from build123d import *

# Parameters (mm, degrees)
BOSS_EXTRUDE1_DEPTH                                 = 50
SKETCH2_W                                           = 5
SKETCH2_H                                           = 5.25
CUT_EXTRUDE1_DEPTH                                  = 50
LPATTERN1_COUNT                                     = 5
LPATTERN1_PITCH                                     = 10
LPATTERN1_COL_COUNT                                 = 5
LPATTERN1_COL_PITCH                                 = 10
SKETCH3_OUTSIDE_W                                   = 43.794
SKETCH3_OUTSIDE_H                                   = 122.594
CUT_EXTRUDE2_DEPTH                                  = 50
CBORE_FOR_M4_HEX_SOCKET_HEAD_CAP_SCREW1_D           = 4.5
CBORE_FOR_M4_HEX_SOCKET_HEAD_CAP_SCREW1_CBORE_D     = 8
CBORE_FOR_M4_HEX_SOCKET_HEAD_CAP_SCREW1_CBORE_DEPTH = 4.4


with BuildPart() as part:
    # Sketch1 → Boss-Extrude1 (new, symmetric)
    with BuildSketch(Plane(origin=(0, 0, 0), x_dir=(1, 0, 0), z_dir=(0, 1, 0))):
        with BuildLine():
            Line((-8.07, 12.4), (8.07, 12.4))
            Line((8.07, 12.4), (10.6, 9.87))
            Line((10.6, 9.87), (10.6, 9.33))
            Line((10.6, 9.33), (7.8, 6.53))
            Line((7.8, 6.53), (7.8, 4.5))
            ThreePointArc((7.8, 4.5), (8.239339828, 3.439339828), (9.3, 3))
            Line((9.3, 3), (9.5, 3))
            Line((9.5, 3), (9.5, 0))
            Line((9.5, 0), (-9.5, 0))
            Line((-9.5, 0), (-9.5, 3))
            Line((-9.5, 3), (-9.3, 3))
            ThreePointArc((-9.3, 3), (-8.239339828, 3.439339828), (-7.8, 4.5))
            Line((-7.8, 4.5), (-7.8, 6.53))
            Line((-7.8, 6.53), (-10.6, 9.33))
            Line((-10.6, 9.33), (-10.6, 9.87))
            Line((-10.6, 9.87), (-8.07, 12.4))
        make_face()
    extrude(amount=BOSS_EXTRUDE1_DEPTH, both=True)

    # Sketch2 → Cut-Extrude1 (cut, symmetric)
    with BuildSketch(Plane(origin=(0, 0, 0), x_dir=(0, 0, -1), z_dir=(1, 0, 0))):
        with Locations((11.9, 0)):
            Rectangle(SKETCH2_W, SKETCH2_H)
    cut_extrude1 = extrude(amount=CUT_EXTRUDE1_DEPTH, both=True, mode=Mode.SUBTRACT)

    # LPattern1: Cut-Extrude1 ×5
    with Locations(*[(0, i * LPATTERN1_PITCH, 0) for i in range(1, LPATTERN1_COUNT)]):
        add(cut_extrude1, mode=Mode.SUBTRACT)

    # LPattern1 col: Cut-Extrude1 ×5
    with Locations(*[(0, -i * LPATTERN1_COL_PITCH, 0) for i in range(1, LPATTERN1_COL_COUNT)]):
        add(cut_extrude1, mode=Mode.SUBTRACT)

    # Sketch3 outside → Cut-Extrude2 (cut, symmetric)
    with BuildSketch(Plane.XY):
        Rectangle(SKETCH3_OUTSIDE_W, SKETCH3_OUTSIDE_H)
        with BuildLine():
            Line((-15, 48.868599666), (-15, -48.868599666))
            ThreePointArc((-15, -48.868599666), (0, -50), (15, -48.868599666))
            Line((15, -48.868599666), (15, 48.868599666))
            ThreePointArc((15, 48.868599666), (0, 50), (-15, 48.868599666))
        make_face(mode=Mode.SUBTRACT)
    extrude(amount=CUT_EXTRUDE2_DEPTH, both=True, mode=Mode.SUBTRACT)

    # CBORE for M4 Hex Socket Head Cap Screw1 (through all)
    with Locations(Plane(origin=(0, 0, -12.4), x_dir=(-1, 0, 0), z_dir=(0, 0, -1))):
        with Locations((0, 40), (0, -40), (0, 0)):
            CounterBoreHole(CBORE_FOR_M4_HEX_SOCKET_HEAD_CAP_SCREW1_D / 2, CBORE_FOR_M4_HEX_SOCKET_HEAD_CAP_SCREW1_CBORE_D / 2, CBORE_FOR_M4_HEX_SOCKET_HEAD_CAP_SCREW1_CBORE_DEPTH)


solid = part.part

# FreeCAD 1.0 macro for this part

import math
import FreeCAD as App
import Part
import Sketcher
from FreeCAD import Vector

doc = App.newDocument("Part")
params = doc.addObject("Spreadsheet::Sheet", "Params")
for row, (alias, value) in enumerate([
    ("sketch1_radius", "1.5 mm"),
    ("sketch1_width", "19 mm"),
    ("sketch1_height", "3 mm"),
    ("sketch1_width2", "0.2 mm"),
    ("sketch1_width3", "16.14 mm"),
    ("pad1_length", "100 mm"),
    ("sketch2_height", "5 mm"),
    ("sketch2_width", "5.25 mm"),
    ("pocket1_length", "100 mm"),
    ("linearpattern_pitch", "10 mm"),
    ("linearpattern2_pitch", "10 mm"),
    ("sketch3_radius", "100 mm"),
    ("pocket2_length", "100 mm"),
    ("sketch4_diameter", "4.5 mm"),
    ("hole_diameter", "4.5 mm"),
    ("hole_cbore_diameter", "8 mm"),
    ("hole_cbore_depth", "4.4 mm"),
], start=1):
    params.set(f"A{row}", alias)
    params.set(f"B{row}", "=" + value)
    params.setAlias(f"B{row}", alias)

body = doc.addObject("PartDesign::Body", "Body")

sketch1 = doc.addObject("Sketcher::SketchObject", "Sketch")
body.addObject(sketch1)
sketch1.AttachmentSupport = (doc.XZ_Plane, [""])
sketch1.MapMode = "FlatFace"
sketch1.addGeometry([
    Part.LineSegment(Vector(8.07, -12.4, 0), Vector(-8.07, -12.4, 0)),
    Part.LineSegment(Vector(-8.07, -12.4, 0), Vector(-10.6, -9.87, 0)),
    Part.LineSegment(Vector(-10.6, -9.87, 0), Vector(-10.6, -9.33, 0)),
    Part.LineSegment(Vector(-10.6, -9.33, 0), Vector(-7.8, -6.53, 0)),
    Part.LineSegment(Vector(-7.8, -6.53, 0), Vector(-7.8, -4.5, 0)),
    Part.ArcOfCircle(Part.Circle(Vector(-9.3, -4.5, 0), Vector(0, 0, 1), 1.5), math.radians(0), math.radians(90)),
    Part.LineSegment(Vector(-9.3, -3, 0), Vector(-9.5, -3, 0)),
    Part.LineSegment(Vector(-9.5, -3, 0), Vector(-9.5, 0, 0)),
    Part.LineSegment(Vector(-9.5, 0, 0), Vector(9.5, 0, 0)),
    Part.LineSegment(Vector(9.5, 0, 0), Vector(9.5, -3, 0)),
    Part.LineSegment(Vector(9.5, -3, 0), Vector(9.3, -3, 0)),
    Part.ArcOfCircle(Part.Circle(Vector(9.3, -4.5, 0), Vector(0, 0, 1), 1.5), math.radians(90), math.radians(180)),
    Part.LineSegment(Vector(7.8, -4.5, 0), Vector(7.8, -6.53, 0)),
    Part.LineSegment(Vector(7.8, -6.53, 0), Vector(10.6, -9.33, 0)),
    Part.LineSegment(Vector(10.6, -9.33, 0), Vector(10.6, -9.87, 0)),
    Part.LineSegment(Vector(10.6, -9.87, 0), Vector(8.07, -12.4, 0)),
], False)
sketch1.addConstraint([
    Sketcher.Constraint("Coincident", 0, 2, 1, 1),
    Sketcher.Constraint("Coincident", 1, 2, 2, 1),
    Sketcher.Constraint("Coincident", 2, 2, 3, 1),
    Sketcher.Constraint("Coincident", 3, 2, 4, 1),
    Sketcher.Constraint("Tangent", 4, 2, 5, 1),
    Sketcher.Constraint("Tangent", 5, 2, 6, 1),
    Sketcher.Constraint("Coincident", 6, 2, 7, 1),
    Sketcher.Constraint("Coincident", 7, 2, 8, 1),
    Sketcher.Constraint("Coincident", 8, 2, 9, 1),
    Sketcher.Constraint("Coincident", 9, 2, 10, 1),
    Sketcher.Constraint("Tangent", 10, 2, 11, 1),
    Sketcher.Constraint("Tangent", 11, 2, 12, 1),
    Sketcher.Constraint("Coincident", 12, 2, 13, 1),
    Sketcher.Constraint("Coincident", 13, 2, 14, 1),
    Sketcher.Constraint("Coincident", 14, 2, 15, 1),
    Sketcher.Constraint("Coincident", 15, 2, 0, 1),
    Sketcher.Constraint("Horizontal", 0),
    Sketcher.Constraint("Vertical", 2),
    Sketcher.Constraint("Vertical", 4),
    Sketcher.Constraint("Horizontal", 6),
    Sketcher.Constraint("Vertical", 7),
    Sketcher.Constraint("Horizontal", 8),
    Sketcher.Constraint("Vertical", 9),
    Sketcher.Constraint("Horizontal", 10),
    Sketcher.Constraint("Vertical", 12),
    Sketcher.Constraint("Vertical", 14),
    Sketcher.Constraint("Equal", 5, 11),
    Sketcher.Constraint("Symmetric", 7, 2, 8, 2, -1, 1),
    Sketcher.Constraint("Symmetric", 5, 3, 11, 3, -2),
    Sketcher.Constraint("Symmetric", 2, 2, 13, 2, -2),
    Sketcher.Constraint("Perpendicular", 1, 3),
    Sketcher.Constraint("Perpendicular", 3, 13),
    Sketcher.Constraint("Perpendicular", 13, 15),
    Sketcher.Constraint("Horizontal", 3, 2, 12, 2),
    Sketcher.Constraint("Horizontal", 1, 2, 14, 2),
    Sketcher.Constraint("Radius", 5, 1.5),
    Sketcher.Constraint("DistanceX", 8, 1, 8, 2, 19.0),
    Sketcher.Constraint("DistanceY", 7, 1, 7, 2, 3.0),
    Sketcher.Constraint("DistanceX", 6, 2, 6, 1, 0.2),
    Sketcher.Constraint("DistanceX", 0, 2, 0, 1, 16.14),
    Sketcher.Constraint("DistanceY", 2, 1, 2, 2, 0.54),
    Sketcher.Constraint("DistanceY", 4, 1, 4, 2, 2.03),
    Sketcher.Constraint("DistanceY", 0, 2, -1, 1, 12.4),
])
sketch1.setExpression("Constraints[35]", "Params.sketch1_radius")
sketch1.setExpression("Constraints[36]", "Params.sketch1_width")
sketch1.setExpression("Constraints[37]", "Params.sketch1_height")
sketch1.setExpression("Constraints[38]", "Params.sketch1_width2")
sketch1.setExpression("Constraints[39]", "Params.sketch1_width3")
pad1 = doc.addObject("PartDesign::Pad", "Pad")
body.addObject(pad1)
pad1.Profile = sketch1
pad1.setExpression("Length", "Params.pad1_length")
pad1.Midplane = True

sketch2 = doc.addObject("Sketcher::SketchObject", "Sketch001")
body.addObject(sketch2)
sketch2.AttachmentSupport = (doc.YZ_Plane, [""])
sketch2.MapMode = "FlatFace"
sketch2.addGeometry([
    Part.LineSegment(Vector(3, -9, 0), Vector(-3, -9, 0)),
    Part.LineSegment(Vector(-3, -9, 0), Vector(-3, -14, 0)),
    Part.LineSegment(Vector(-3, -14, 0), Vector(3, -14, 0)),
    Part.LineSegment(Vector(3, -14, 0), Vector(3, -9, 0)),
], False)
sketch2.addConstraint([
    Sketcher.Constraint("Coincident", 0, 2, 1, 1),
    Sketcher.Constraint("Coincident", 1, 2, 2, 1),
    Sketcher.Constraint("Coincident", 2, 2, 3, 1),
    Sketcher.Constraint("Coincident", 3, 2, 0, 1),
    Sketcher.Constraint("Horizontal", 0),
    Sketcher.Constraint("Vertical", 1),
    Sketcher.Constraint("Horizontal", 2),
    Sketcher.Constraint("Vertical", 3),
    Sketcher.Constraint("DistanceY", 1, 2, 1, 1, 5.0),
    Sketcher.Constraint("DistanceX", 0, 2, 0, 1, 5.25),
    Sketcher.Constraint("DistanceY", 0, 2, -1, 1, 9.4),
    Sketcher.Constraint("DistanceX", 0, 2, -1, 1, 2.625),
])
sketch2.setExpression("Constraints[8]", "Params.sketch2_height")
sketch2.setExpression("Constraints[9]", "Params.sketch2_width")
pocket1 = doc.addObject("PartDesign::Pocket", "Pocket")
body.addObject(pocket1)
pocket1.Profile = sketch2
pocket1.setExpression("Length", "Params.pocket1_length")
pocket1.Midplane = True
doc.recompute()

linearpattern = doc.addObject("PartDesign::LinearPattern", "LinearPattern")
body.addObject(linearpattern)
linearpattern.Originals = [pocket1]
linearpattern.Direction = (doc.Y_Axis, [""])
linearpattern.Mode = "offset"
linearpattern.setExpression("Offset", "Params.linearpattern_pitch")
linearpattern.Occurrences = 5
body.Tip = linearpattern
doc.recompute()

linearpattern2 = doc.addObject("PartDesign::LinearPattern", "LinearPattern001")
body.addObject(linearpattern2)
linearpattern2.Originals = [pocket1]
linearpattern2.Direction = (doc.Y_Axis, [""])
linearpattern2.Mode = "offset"
linearpattern2.setExpression("Offset", "Params.linearpattern2_pitch")
linearpattern2.Occurrences = 5
linearpattern2.Reversed = True
body.Tip = linearpattern2

sketch3 = doc.addObject("Sketcher::SketchObject", "Sketch002")
body.addObject(sketch3)
sketch3.AttachmentSupport = (doc.XY_Plane, [""])
sketch3.MapMode = "FlatFace"
sketch3.addGeometry([
    Part.LineSegment(Vector(-22, 61, 0), Vector(-22, -61, 0)),
    Part.LineSegment(Vector(-22, -61, 0), Vector(22, -61, 0)),
    Part.LineSegment(Vector(22, -61, 0), Vector(22, 61, 0)),
    Part.LineSegment(Vector(22, 61, 0), Vector(-22, 61, 0)),
    Part.LineSegment(Vector(-15, -49, 0), Vector(-15, 49, 0)),
    Part.ArcOfCircle(Part.Circle(Vector(0, -50, 0), Vector(0, 0, 1), 100), math.radians(81.37), math.radians(98.63)),
    Part.LineSegment(Vector(15, 49, 0), Vector(15, -49, 0)),
    Part.ArcOfCircle(Part.Circle(Vector(0, 50, 0), Vector(0, 0, 1), 100), math.radians(-98.63), math.radians(-81.37)),
], False)
sketch3.addConstraint([
    Sketcher.Constraint("Coincident", 0, 2, 1, 1),
    Sketcher.Constraint("Coincident", 1, 2, 2, 1),
    Sketcher.Constraint("Coincident", 2, 2, 3, 1),
    Sketcher.Constraint("Coincident", 3, 2, 0, 1),
    Sketcher.Constraint("Coincident", 4, 2, 5, 2),
    Sketcher.Constraint("Coincident", 5, 1, 6, 1),
    Sketcher.Constraint("Coincident", 6, 2, 7, 2),
    Sketcher.Constraint("Coincident", 7, 1, 4, 1),
    Sketcher.Constraint("Vertical", 0),
    Sketcher.Constraint("Horizontal", 1),
    Sketcher.Constraint("Vertical", 2),
    Sketcher.Constraint("Horizontal", 3),
    Sketcher.Constraint("Vertical", 4),
    Sketcher.Constraint("Vertical", 6),
    Sketcher.Constraint("Equal", 5, 7),
    Sketcher.Constraint("Symmetric", 5, 3, 7, 3, -1, 1),
    Sketcher.Constraint("Symmetric", 0, 2, 2, 2, -1, 1),
    Sketcher.Constraint("Symmetric", 4, 2, 5, 1, -2),
    Sketcher.Constraint("Radius", 5, 100.0),
    Sketcher.Constraint("DistanceY", 5, 3, -1, 1, 50.0),
    Sketcher.Constraint("DistanceX", 4, 2, -1, 1, 15.0),
    Sketcher.Constraint("DistanceX", 1, 1, 1, 2, 43.794),
    Sketcher.Constraint("DistanceY", 0, 2, 0, 1, 122.594),
])
sketch3.setExpression("Constraints[18]", "Params.sketch3_radius")
pocket2 = doc.addObject("PartDesign::Pocket", "Pocket001")
body.addObject(pocket2)
pocket2.Profile = sketch3
pocket2.setExpression("Length", "Params.pocket2_length")
pocket2.Midplane = True

sketch4 = doc.addObject("Sketcher::SketchObject", "Sketch003")
body.addObject(sketch4)
sketch4.AttachmentSupport = (doc.XY_Plane, [""])
sketch4.MapMode = "FlatFace"
sketch4.AttachmentOffset = App.Placement(Vector(0, 0, -12.4), App.Rotation())
sketch4.addGeometry([
    Part.Circle(Vector(0, 40, 0), Vector(0, 0, 1), 2.2),
    Part.Circle(Vector(0, -40, 0), Vector(0, 0, 1), 2.2),
    Part.Circle(Vector(0, 0, 0), Vector(0, 0, 1), 2.2),
], False)
sketch4.addConstraint([
    Sketcher.Constraint("Coincident", 2, 3, -1, 1),
    Sketcher.Constraint("Equal", 0, 1),
    Sketcher.Constraint("Equal", 1, 2),
    Sketcher.Constraint("Symmetric", 0, 3, 1, 3, -1, 1),
    Sketcher.Constraint("PointOnObject", 0, 3, -2),
    Sketcher.Constraint("Diameter", 0, 4.5),
    Sketcher.Constraint("DistanceY", -1, 1, 0, 3, 40.0),
])
sketch4.setExpression("Constraints[5]", "Params.sketch4_diameter")
doc.recompute()
hole = doc.addObject("PartDesign::Hole", "Hole")
body.addObject(hole)
hole.Profile = sketch4
hole.ThreadType = "None"
hole.setExpression("Diameter", "Params.hole_diameter")
hole.DepthType = "ThroughAll"
hole.HoleCutType = "Counterbore"
hole.setExpression("HoleCutDiameter", "Params.hole_cbore_diameter")
hole.setExpression("HoleCutDepth", "Params.hole_cbore_depth")
hole.Reversed = True

doc.recompute()
